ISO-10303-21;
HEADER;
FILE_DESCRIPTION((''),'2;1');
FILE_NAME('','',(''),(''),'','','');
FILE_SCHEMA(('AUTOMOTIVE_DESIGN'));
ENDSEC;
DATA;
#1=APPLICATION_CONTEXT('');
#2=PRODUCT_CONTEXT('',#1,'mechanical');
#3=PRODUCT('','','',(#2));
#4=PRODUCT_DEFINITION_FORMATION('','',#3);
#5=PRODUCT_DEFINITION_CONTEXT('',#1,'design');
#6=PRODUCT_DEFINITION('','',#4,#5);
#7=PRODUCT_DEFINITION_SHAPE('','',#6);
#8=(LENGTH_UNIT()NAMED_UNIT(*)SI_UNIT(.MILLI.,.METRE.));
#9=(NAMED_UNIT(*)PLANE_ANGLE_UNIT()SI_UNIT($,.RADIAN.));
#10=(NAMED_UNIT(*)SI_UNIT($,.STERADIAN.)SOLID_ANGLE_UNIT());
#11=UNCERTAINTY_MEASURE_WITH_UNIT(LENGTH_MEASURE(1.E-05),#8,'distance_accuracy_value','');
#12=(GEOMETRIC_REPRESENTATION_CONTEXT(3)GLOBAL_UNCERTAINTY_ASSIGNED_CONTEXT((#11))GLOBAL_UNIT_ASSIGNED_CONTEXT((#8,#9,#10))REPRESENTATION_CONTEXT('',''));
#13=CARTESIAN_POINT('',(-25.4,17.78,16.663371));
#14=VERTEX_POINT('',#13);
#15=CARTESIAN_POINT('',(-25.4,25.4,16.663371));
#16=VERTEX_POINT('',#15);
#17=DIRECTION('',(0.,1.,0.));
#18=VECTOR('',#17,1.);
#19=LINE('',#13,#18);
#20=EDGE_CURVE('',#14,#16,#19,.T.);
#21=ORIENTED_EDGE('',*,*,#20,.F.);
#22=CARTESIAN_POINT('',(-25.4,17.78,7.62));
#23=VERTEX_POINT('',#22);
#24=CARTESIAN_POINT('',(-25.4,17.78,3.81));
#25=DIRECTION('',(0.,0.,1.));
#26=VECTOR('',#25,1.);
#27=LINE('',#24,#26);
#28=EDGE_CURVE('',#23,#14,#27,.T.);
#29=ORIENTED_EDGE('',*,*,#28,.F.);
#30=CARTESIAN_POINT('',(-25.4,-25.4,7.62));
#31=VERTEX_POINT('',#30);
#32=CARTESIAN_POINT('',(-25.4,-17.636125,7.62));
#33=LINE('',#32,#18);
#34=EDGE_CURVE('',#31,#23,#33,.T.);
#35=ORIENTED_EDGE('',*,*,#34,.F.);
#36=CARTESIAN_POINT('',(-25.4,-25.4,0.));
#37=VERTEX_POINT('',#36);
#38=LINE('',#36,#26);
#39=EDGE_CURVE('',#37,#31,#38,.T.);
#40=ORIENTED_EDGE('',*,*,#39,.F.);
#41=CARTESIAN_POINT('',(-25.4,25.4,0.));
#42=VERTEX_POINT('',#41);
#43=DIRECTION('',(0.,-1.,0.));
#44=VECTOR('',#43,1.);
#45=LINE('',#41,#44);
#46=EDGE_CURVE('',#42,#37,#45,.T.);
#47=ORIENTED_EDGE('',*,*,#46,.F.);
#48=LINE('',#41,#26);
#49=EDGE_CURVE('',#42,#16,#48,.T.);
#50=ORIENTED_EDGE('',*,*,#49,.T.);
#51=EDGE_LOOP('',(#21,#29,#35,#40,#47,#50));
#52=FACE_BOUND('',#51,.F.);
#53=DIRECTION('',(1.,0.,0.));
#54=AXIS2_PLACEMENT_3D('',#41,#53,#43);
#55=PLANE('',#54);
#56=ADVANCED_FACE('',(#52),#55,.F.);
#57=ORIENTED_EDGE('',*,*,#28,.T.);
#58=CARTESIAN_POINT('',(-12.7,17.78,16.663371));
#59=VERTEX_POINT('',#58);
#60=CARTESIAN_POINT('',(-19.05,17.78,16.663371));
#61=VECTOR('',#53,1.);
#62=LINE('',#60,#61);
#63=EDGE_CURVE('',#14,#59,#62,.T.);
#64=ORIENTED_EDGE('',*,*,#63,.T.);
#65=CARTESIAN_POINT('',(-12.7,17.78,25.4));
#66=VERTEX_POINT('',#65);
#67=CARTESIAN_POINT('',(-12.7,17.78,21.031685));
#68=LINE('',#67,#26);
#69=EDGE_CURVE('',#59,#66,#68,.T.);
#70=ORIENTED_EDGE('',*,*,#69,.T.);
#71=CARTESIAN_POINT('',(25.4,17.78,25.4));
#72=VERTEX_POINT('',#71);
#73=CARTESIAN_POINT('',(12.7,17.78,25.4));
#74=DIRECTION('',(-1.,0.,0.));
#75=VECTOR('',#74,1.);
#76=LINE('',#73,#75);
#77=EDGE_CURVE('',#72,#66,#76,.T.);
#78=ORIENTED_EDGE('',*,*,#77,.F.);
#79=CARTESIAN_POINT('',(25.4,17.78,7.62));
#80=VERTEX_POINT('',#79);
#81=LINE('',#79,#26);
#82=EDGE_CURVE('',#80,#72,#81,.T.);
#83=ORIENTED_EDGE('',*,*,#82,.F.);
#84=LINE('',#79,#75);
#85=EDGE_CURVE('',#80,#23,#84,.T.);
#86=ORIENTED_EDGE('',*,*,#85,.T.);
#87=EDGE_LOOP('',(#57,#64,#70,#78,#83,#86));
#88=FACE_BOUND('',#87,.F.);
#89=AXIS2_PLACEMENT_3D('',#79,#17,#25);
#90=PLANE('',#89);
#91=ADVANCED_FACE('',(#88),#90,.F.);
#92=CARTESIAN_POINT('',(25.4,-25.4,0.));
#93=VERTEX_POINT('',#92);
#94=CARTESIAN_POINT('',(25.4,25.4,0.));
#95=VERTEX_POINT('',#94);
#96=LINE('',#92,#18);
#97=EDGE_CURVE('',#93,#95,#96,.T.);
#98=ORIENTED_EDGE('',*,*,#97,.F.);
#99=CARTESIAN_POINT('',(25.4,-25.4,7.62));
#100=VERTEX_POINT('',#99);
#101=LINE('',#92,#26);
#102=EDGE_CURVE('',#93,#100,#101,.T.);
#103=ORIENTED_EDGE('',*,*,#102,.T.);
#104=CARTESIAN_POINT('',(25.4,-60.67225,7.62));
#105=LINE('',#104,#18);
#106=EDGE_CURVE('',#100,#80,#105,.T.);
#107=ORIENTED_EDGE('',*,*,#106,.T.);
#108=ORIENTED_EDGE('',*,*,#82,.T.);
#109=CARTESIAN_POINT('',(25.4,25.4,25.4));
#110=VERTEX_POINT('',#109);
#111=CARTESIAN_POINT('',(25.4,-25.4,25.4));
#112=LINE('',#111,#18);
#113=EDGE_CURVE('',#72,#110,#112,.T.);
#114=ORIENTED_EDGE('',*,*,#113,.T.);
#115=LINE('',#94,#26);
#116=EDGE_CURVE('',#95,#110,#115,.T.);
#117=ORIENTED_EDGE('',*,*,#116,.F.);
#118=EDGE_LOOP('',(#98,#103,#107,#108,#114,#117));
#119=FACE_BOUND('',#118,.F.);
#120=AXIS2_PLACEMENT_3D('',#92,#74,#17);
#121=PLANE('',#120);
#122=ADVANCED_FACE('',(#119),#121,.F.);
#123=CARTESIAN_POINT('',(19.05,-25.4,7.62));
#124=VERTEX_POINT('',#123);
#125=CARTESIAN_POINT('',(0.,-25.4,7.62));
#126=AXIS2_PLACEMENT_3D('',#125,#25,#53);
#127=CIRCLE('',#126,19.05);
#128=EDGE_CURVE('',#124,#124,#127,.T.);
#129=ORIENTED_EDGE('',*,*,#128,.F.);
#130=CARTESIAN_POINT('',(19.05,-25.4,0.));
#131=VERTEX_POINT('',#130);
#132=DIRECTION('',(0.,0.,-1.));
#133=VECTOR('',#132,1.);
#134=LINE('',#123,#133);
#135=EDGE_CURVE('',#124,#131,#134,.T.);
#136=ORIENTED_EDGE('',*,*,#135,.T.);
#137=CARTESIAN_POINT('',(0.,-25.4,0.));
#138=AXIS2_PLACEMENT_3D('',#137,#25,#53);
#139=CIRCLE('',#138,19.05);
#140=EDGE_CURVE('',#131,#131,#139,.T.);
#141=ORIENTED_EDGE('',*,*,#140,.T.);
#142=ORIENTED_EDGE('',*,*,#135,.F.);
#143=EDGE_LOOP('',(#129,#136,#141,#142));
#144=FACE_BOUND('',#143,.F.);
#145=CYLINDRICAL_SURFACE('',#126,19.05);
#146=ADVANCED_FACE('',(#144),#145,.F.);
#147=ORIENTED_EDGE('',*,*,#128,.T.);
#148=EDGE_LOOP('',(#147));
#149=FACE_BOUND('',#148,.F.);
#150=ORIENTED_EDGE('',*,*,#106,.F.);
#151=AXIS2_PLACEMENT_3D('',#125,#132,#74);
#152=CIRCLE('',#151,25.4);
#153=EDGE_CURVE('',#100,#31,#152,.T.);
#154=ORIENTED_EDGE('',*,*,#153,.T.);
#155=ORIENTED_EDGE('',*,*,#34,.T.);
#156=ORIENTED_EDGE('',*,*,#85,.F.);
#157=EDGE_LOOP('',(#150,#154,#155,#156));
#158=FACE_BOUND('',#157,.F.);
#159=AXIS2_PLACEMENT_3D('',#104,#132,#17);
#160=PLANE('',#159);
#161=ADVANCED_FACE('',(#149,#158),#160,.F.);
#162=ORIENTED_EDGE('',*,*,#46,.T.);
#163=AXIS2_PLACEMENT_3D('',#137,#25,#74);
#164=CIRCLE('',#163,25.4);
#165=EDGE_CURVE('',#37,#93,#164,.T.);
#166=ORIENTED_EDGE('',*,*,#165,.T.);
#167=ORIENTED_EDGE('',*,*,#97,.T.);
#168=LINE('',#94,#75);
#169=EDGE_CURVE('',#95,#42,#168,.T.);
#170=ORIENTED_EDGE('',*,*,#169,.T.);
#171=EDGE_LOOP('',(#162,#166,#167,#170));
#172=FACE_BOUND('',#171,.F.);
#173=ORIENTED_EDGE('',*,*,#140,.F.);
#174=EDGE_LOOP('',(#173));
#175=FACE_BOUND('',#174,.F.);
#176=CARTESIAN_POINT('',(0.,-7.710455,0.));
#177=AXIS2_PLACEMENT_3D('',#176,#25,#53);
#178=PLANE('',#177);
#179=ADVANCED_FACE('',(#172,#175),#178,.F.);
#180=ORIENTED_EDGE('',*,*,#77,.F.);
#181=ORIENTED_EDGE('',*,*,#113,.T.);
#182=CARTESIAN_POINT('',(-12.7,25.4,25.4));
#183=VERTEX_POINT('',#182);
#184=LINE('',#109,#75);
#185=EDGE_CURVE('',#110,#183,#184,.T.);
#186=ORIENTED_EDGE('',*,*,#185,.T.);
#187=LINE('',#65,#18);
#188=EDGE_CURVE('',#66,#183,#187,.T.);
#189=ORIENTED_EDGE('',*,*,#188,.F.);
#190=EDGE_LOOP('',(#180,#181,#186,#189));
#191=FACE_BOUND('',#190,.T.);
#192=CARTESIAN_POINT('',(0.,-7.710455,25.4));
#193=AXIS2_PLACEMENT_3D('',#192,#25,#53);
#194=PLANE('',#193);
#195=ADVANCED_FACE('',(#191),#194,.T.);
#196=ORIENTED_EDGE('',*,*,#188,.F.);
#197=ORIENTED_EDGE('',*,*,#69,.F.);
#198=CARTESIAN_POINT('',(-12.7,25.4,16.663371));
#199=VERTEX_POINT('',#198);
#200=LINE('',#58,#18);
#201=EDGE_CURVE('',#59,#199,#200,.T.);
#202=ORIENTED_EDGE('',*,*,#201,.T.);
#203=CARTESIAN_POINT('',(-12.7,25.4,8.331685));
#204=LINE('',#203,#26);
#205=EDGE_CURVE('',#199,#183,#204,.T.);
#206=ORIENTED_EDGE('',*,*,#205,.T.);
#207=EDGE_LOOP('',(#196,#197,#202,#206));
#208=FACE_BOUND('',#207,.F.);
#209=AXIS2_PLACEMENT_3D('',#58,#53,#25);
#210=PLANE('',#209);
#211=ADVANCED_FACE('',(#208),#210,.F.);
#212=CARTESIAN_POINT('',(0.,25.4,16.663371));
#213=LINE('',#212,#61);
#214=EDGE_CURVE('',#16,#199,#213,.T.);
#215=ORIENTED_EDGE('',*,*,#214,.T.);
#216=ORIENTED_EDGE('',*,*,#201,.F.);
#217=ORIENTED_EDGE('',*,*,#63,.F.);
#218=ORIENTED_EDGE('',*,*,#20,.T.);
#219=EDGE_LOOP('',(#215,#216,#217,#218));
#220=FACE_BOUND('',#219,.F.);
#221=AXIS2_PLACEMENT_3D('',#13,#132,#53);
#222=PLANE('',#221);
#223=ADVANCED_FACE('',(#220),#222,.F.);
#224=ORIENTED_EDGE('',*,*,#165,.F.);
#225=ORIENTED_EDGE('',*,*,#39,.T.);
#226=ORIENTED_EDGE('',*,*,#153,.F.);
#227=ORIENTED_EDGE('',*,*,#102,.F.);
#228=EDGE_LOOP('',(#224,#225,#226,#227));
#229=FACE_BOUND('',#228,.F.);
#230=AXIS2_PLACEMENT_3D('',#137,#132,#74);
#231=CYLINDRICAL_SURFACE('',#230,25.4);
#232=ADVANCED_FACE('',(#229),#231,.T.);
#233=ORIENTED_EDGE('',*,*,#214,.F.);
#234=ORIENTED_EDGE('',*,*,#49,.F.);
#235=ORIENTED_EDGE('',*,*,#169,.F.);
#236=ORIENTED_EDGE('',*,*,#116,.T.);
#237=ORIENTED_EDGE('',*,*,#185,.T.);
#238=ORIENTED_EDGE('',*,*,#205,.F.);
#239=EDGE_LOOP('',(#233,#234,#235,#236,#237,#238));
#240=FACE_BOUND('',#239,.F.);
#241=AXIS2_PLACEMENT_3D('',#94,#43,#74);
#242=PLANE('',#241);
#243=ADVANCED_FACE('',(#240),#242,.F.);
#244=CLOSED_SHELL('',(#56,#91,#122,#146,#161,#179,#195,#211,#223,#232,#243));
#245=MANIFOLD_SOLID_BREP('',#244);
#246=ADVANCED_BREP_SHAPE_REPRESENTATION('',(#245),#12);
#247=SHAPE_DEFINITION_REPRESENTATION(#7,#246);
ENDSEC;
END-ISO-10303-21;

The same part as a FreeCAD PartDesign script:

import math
import FreeCAD as App
import Part
import Sketcher
from FreeCAD import Vector
Q = App.Units.Quantity

doc = App.newDocument("Part")
body = doc.addObject("PartDesign::Body", "Body")

# Sketch on XY plane
sketch1 = body.newObject("Sketcher::SketchObject", "Sketch")
sketch1.AttachmentSupport = (doc.getObject("XY_Plane"), [""])
sketch1.MapMode = "FlatFace"
sketch1.addGeometry(Part.LineSegment(Vector(25, 25, 0), Vector(-25, 25, 0)), False)
sketch1.addGeometry(Part.LineSegment(Vector(-25, 25, 0), Vector(-25, -25, 0)), False)
sketch1.addGeometry(Part.ArcOfCircle(Part.Circle(Vector(0, -25, 0), Vector(0, 0, 1), 25), math.radians(180), math.radians(360)), False)
sketch1.addGeometry(Part.LineSegment(Vector(25, -25, 0), Vector(25, 25, 0)), False)
sketch1.addConstraint(Sketcher.Constraint("Coincident", 0, 2, 1, 1))
sketch1.addConstraint(Sketcher.Constraint("Tangent", 1, 2, 2, 1))
sketch1.addConstraint(Sketcher.Constraint("Tangent", 2, 2, 3, 1))
sketch1.addConstraint(Sketcher.Constraint("Coincident", 3, 2, 0, 1))
sketch1.addConstraint(Sketcher.Constraint("Horizontal", 0))
sketch1.addConstraint(Sketcher.Constraint("Vertical", 1))
sketch1.addConstraint(Sketcher.Constraint("Vertical", 3))
sketch1.addConstraint(Sketcher.Constraint("Symmetric", 0, 2, 2, 2, -1, 1))
sketch1.addConstraint(Sketcher.Constraint("Equal", 0, 1))
sketch1.addConstraint(Sketcher.Constraint("Radius", 2, Q("1 in")))
pad1 = body.newObject("PartDesign::Pad", "Pad")
pad1.Profile = sketch1
pad1.Length = Q("1 in")

# Sketch on YZ plane
sketch2 = body.newObject("Sketcher::SketchObject", "Sketch001")
sketch2.AttachmentSupport = (doc.getObject("YZ_Plane"), [""])
sketch2.MapMode = "FlatFace"
sketch2.AttachmentOffset = App.Placement(Vector(0, 0, 1 * 25.4), App.Rotation())
sketch2.addGeometry(Part.LineSegment(Vector(18, 8, 0), Vector(18, 33, 0)), False)
sketch2.addGeometry(Part.LineSegment(Vector(18, 33, 0), Vector(-61, 33, 0)), False)
sketch2.addGeometry(Part.LineSegment(Vector(-61, 33, 0), Vector(-61, 8, 0)), False)
sketch2.addGeometry(Part.LineSegment(Vector(-61, 8, 0), Vector(18, 8, 0)), False)
sketch2.addConstraint(Sketcher.Constraint("Coincident", 0, 2, 1, 1))
sketch2.addConstraint(Sketcher.Constraint("Coincident", 1, 2, 2, 1))
sketch2.addConstraint(Sketcher.Constraint("Coincident", 2, 2, 3, 1))
sketch2.addConstraint(Sketcher.Constraint("Coincident", 3, 2, 0, 1))
sketch2.addConstraint(Sketcher.Constraint("Vertical", 0))
sketch2.addConstraint(Sketcher.Constraint("Horizontal", 1))
sketch2.addConstraint(Sketcher.Constraint("Vertical", 2))
sketch2.addConstraint(Sketcher.Constraint("Horizontal", 3))
sketch2.addConstraint(Sketcher.Constraint("DistanceY", 0, 1, 0, 2, Q("1 in")))
sketch2.addConstraint(Sketcher.Constraint("DistanceX", -1, 1, 0, 2, Q("0.7 in")))
sketch2.addConstraint(Sketcher.Constraint("DistanceY", -1, 1, 0, 2, Q("1.3 in")))
sketch2.addConstraint(Sketcher.Constraint("DistanceX", 1, 2, 1, 1, 78.45225))
pocket1 = body.newObject("PartDesign::Pocket", "Pocket")
pocket1.Profile = sketch2
pocket1.Type = "ThroughAll"

# Sketch on XZ plane
sketch3 = body.newObject("Sketcher::SketchObject", "Sketch002")
sketch3.AttachmentSupport = (doc.getObject("XZ_Plane"), [""])
sketch3.MapMode = "FlatFace"
sketch3.AttachmentOffset = App.Placement(Vector(0, 0, -0.7 * 25.4), App.Rotation())
sketch3.addGeometry(Part.LineSegment(Vector(-25, 25, 0), Vector(-25, 17, 0)), False)
sketch3.addGeometry(Part.LineSegment(Vector(-25, 17, 0), Vector(-13, 17, 0)), False)
sketch3.addGeometry(Part.LineSegment(Vector(-13, 17, 0), Vector(-13, 25, 0)), False)
sketch3.addGeometry(Part.LineSegment(Vector(-13, 25, 0), Vector(-25, 25, 0)), False)
sketch3.addConstraint(Sketcher.Constraint("Coincident", 0, 2, 1, 1))
sketch3.addConstraint(Sketcher.Constraint("Coincident", 1, 2, 2, 1))
sketch3.addConstraint(Sketcher.Constraint("Coincident", 2, 2, 3, 1))
sketch3.addConstraint(Sketcher.Constraint("Coincident", 3, 2, 0, 1))
sketch3.addConstraint(Sketcher.Constraint("Vertical", 0))
sketch3.addConstraint(Sketcher.Constraint("Horizontal", 1))
sketch3.addConstraint(Sketcher.Constraint("Vertical", 2))
sketch3.addConstraint(Sketcher.Constraint("Horizontal", 3))
sketch3.addConstraint(Sketcher.Constraint("DistanceX", 1, 1, 1, 2, Q("0.5 in")))
sketch3.addConstraint(Sketcher.Constraint("DistanceX", 0, 2, -1, 1, Q("1 in")))
sketch3.addConstraint(Sketcher.Constraint("DistanceY", -1, 1, 2, 2, Q("1 in")))
sketch3.addConstraint(Sketcher.Constraint("DistanceY", 0, 2, 0, 1, 8.736629))
pocket2 = body.newObject("PartDesign::Pocket", "Pocket001")
pocket2.Profile = sketch3
pocket2.Type = "ThroughAll"

# Sketch on XY plane
sketch4 = body.newObject("Sketcher::SketchObject", "Sketch003")
sketch4.AttachmentSupport = (doc.getObject("XY_Plane"), [""])
sketch4.MapMode = "FlatFace"
sketch4.AttachmentOffset = App.Placement(Vector(0, 0, 0.3 * 25.4), App.Rotation())
sketch4.addGeometry(Part.Circle(Vector(0, -25, 0), Vector(0, 0, 1), 19), False)
sketch4.addConstraint(Sketcher.Constraint("PointOnObject", 0, 3, -2))
sketch4.addConstraint(Sketcher.Constraint("Diameter", 0, Q("1.5 in")))
sketch4.addConstraint(Sketcher.Constraint("DistanceY", 0, 3, -1, 1, Q("1 in")))
pocket3 = body.newObject("PartDesign::Pocket", "Pocket002")
pocket3.Profile = sketch4
pocket3.Type = "ThroughAll"

doc.recompute()
